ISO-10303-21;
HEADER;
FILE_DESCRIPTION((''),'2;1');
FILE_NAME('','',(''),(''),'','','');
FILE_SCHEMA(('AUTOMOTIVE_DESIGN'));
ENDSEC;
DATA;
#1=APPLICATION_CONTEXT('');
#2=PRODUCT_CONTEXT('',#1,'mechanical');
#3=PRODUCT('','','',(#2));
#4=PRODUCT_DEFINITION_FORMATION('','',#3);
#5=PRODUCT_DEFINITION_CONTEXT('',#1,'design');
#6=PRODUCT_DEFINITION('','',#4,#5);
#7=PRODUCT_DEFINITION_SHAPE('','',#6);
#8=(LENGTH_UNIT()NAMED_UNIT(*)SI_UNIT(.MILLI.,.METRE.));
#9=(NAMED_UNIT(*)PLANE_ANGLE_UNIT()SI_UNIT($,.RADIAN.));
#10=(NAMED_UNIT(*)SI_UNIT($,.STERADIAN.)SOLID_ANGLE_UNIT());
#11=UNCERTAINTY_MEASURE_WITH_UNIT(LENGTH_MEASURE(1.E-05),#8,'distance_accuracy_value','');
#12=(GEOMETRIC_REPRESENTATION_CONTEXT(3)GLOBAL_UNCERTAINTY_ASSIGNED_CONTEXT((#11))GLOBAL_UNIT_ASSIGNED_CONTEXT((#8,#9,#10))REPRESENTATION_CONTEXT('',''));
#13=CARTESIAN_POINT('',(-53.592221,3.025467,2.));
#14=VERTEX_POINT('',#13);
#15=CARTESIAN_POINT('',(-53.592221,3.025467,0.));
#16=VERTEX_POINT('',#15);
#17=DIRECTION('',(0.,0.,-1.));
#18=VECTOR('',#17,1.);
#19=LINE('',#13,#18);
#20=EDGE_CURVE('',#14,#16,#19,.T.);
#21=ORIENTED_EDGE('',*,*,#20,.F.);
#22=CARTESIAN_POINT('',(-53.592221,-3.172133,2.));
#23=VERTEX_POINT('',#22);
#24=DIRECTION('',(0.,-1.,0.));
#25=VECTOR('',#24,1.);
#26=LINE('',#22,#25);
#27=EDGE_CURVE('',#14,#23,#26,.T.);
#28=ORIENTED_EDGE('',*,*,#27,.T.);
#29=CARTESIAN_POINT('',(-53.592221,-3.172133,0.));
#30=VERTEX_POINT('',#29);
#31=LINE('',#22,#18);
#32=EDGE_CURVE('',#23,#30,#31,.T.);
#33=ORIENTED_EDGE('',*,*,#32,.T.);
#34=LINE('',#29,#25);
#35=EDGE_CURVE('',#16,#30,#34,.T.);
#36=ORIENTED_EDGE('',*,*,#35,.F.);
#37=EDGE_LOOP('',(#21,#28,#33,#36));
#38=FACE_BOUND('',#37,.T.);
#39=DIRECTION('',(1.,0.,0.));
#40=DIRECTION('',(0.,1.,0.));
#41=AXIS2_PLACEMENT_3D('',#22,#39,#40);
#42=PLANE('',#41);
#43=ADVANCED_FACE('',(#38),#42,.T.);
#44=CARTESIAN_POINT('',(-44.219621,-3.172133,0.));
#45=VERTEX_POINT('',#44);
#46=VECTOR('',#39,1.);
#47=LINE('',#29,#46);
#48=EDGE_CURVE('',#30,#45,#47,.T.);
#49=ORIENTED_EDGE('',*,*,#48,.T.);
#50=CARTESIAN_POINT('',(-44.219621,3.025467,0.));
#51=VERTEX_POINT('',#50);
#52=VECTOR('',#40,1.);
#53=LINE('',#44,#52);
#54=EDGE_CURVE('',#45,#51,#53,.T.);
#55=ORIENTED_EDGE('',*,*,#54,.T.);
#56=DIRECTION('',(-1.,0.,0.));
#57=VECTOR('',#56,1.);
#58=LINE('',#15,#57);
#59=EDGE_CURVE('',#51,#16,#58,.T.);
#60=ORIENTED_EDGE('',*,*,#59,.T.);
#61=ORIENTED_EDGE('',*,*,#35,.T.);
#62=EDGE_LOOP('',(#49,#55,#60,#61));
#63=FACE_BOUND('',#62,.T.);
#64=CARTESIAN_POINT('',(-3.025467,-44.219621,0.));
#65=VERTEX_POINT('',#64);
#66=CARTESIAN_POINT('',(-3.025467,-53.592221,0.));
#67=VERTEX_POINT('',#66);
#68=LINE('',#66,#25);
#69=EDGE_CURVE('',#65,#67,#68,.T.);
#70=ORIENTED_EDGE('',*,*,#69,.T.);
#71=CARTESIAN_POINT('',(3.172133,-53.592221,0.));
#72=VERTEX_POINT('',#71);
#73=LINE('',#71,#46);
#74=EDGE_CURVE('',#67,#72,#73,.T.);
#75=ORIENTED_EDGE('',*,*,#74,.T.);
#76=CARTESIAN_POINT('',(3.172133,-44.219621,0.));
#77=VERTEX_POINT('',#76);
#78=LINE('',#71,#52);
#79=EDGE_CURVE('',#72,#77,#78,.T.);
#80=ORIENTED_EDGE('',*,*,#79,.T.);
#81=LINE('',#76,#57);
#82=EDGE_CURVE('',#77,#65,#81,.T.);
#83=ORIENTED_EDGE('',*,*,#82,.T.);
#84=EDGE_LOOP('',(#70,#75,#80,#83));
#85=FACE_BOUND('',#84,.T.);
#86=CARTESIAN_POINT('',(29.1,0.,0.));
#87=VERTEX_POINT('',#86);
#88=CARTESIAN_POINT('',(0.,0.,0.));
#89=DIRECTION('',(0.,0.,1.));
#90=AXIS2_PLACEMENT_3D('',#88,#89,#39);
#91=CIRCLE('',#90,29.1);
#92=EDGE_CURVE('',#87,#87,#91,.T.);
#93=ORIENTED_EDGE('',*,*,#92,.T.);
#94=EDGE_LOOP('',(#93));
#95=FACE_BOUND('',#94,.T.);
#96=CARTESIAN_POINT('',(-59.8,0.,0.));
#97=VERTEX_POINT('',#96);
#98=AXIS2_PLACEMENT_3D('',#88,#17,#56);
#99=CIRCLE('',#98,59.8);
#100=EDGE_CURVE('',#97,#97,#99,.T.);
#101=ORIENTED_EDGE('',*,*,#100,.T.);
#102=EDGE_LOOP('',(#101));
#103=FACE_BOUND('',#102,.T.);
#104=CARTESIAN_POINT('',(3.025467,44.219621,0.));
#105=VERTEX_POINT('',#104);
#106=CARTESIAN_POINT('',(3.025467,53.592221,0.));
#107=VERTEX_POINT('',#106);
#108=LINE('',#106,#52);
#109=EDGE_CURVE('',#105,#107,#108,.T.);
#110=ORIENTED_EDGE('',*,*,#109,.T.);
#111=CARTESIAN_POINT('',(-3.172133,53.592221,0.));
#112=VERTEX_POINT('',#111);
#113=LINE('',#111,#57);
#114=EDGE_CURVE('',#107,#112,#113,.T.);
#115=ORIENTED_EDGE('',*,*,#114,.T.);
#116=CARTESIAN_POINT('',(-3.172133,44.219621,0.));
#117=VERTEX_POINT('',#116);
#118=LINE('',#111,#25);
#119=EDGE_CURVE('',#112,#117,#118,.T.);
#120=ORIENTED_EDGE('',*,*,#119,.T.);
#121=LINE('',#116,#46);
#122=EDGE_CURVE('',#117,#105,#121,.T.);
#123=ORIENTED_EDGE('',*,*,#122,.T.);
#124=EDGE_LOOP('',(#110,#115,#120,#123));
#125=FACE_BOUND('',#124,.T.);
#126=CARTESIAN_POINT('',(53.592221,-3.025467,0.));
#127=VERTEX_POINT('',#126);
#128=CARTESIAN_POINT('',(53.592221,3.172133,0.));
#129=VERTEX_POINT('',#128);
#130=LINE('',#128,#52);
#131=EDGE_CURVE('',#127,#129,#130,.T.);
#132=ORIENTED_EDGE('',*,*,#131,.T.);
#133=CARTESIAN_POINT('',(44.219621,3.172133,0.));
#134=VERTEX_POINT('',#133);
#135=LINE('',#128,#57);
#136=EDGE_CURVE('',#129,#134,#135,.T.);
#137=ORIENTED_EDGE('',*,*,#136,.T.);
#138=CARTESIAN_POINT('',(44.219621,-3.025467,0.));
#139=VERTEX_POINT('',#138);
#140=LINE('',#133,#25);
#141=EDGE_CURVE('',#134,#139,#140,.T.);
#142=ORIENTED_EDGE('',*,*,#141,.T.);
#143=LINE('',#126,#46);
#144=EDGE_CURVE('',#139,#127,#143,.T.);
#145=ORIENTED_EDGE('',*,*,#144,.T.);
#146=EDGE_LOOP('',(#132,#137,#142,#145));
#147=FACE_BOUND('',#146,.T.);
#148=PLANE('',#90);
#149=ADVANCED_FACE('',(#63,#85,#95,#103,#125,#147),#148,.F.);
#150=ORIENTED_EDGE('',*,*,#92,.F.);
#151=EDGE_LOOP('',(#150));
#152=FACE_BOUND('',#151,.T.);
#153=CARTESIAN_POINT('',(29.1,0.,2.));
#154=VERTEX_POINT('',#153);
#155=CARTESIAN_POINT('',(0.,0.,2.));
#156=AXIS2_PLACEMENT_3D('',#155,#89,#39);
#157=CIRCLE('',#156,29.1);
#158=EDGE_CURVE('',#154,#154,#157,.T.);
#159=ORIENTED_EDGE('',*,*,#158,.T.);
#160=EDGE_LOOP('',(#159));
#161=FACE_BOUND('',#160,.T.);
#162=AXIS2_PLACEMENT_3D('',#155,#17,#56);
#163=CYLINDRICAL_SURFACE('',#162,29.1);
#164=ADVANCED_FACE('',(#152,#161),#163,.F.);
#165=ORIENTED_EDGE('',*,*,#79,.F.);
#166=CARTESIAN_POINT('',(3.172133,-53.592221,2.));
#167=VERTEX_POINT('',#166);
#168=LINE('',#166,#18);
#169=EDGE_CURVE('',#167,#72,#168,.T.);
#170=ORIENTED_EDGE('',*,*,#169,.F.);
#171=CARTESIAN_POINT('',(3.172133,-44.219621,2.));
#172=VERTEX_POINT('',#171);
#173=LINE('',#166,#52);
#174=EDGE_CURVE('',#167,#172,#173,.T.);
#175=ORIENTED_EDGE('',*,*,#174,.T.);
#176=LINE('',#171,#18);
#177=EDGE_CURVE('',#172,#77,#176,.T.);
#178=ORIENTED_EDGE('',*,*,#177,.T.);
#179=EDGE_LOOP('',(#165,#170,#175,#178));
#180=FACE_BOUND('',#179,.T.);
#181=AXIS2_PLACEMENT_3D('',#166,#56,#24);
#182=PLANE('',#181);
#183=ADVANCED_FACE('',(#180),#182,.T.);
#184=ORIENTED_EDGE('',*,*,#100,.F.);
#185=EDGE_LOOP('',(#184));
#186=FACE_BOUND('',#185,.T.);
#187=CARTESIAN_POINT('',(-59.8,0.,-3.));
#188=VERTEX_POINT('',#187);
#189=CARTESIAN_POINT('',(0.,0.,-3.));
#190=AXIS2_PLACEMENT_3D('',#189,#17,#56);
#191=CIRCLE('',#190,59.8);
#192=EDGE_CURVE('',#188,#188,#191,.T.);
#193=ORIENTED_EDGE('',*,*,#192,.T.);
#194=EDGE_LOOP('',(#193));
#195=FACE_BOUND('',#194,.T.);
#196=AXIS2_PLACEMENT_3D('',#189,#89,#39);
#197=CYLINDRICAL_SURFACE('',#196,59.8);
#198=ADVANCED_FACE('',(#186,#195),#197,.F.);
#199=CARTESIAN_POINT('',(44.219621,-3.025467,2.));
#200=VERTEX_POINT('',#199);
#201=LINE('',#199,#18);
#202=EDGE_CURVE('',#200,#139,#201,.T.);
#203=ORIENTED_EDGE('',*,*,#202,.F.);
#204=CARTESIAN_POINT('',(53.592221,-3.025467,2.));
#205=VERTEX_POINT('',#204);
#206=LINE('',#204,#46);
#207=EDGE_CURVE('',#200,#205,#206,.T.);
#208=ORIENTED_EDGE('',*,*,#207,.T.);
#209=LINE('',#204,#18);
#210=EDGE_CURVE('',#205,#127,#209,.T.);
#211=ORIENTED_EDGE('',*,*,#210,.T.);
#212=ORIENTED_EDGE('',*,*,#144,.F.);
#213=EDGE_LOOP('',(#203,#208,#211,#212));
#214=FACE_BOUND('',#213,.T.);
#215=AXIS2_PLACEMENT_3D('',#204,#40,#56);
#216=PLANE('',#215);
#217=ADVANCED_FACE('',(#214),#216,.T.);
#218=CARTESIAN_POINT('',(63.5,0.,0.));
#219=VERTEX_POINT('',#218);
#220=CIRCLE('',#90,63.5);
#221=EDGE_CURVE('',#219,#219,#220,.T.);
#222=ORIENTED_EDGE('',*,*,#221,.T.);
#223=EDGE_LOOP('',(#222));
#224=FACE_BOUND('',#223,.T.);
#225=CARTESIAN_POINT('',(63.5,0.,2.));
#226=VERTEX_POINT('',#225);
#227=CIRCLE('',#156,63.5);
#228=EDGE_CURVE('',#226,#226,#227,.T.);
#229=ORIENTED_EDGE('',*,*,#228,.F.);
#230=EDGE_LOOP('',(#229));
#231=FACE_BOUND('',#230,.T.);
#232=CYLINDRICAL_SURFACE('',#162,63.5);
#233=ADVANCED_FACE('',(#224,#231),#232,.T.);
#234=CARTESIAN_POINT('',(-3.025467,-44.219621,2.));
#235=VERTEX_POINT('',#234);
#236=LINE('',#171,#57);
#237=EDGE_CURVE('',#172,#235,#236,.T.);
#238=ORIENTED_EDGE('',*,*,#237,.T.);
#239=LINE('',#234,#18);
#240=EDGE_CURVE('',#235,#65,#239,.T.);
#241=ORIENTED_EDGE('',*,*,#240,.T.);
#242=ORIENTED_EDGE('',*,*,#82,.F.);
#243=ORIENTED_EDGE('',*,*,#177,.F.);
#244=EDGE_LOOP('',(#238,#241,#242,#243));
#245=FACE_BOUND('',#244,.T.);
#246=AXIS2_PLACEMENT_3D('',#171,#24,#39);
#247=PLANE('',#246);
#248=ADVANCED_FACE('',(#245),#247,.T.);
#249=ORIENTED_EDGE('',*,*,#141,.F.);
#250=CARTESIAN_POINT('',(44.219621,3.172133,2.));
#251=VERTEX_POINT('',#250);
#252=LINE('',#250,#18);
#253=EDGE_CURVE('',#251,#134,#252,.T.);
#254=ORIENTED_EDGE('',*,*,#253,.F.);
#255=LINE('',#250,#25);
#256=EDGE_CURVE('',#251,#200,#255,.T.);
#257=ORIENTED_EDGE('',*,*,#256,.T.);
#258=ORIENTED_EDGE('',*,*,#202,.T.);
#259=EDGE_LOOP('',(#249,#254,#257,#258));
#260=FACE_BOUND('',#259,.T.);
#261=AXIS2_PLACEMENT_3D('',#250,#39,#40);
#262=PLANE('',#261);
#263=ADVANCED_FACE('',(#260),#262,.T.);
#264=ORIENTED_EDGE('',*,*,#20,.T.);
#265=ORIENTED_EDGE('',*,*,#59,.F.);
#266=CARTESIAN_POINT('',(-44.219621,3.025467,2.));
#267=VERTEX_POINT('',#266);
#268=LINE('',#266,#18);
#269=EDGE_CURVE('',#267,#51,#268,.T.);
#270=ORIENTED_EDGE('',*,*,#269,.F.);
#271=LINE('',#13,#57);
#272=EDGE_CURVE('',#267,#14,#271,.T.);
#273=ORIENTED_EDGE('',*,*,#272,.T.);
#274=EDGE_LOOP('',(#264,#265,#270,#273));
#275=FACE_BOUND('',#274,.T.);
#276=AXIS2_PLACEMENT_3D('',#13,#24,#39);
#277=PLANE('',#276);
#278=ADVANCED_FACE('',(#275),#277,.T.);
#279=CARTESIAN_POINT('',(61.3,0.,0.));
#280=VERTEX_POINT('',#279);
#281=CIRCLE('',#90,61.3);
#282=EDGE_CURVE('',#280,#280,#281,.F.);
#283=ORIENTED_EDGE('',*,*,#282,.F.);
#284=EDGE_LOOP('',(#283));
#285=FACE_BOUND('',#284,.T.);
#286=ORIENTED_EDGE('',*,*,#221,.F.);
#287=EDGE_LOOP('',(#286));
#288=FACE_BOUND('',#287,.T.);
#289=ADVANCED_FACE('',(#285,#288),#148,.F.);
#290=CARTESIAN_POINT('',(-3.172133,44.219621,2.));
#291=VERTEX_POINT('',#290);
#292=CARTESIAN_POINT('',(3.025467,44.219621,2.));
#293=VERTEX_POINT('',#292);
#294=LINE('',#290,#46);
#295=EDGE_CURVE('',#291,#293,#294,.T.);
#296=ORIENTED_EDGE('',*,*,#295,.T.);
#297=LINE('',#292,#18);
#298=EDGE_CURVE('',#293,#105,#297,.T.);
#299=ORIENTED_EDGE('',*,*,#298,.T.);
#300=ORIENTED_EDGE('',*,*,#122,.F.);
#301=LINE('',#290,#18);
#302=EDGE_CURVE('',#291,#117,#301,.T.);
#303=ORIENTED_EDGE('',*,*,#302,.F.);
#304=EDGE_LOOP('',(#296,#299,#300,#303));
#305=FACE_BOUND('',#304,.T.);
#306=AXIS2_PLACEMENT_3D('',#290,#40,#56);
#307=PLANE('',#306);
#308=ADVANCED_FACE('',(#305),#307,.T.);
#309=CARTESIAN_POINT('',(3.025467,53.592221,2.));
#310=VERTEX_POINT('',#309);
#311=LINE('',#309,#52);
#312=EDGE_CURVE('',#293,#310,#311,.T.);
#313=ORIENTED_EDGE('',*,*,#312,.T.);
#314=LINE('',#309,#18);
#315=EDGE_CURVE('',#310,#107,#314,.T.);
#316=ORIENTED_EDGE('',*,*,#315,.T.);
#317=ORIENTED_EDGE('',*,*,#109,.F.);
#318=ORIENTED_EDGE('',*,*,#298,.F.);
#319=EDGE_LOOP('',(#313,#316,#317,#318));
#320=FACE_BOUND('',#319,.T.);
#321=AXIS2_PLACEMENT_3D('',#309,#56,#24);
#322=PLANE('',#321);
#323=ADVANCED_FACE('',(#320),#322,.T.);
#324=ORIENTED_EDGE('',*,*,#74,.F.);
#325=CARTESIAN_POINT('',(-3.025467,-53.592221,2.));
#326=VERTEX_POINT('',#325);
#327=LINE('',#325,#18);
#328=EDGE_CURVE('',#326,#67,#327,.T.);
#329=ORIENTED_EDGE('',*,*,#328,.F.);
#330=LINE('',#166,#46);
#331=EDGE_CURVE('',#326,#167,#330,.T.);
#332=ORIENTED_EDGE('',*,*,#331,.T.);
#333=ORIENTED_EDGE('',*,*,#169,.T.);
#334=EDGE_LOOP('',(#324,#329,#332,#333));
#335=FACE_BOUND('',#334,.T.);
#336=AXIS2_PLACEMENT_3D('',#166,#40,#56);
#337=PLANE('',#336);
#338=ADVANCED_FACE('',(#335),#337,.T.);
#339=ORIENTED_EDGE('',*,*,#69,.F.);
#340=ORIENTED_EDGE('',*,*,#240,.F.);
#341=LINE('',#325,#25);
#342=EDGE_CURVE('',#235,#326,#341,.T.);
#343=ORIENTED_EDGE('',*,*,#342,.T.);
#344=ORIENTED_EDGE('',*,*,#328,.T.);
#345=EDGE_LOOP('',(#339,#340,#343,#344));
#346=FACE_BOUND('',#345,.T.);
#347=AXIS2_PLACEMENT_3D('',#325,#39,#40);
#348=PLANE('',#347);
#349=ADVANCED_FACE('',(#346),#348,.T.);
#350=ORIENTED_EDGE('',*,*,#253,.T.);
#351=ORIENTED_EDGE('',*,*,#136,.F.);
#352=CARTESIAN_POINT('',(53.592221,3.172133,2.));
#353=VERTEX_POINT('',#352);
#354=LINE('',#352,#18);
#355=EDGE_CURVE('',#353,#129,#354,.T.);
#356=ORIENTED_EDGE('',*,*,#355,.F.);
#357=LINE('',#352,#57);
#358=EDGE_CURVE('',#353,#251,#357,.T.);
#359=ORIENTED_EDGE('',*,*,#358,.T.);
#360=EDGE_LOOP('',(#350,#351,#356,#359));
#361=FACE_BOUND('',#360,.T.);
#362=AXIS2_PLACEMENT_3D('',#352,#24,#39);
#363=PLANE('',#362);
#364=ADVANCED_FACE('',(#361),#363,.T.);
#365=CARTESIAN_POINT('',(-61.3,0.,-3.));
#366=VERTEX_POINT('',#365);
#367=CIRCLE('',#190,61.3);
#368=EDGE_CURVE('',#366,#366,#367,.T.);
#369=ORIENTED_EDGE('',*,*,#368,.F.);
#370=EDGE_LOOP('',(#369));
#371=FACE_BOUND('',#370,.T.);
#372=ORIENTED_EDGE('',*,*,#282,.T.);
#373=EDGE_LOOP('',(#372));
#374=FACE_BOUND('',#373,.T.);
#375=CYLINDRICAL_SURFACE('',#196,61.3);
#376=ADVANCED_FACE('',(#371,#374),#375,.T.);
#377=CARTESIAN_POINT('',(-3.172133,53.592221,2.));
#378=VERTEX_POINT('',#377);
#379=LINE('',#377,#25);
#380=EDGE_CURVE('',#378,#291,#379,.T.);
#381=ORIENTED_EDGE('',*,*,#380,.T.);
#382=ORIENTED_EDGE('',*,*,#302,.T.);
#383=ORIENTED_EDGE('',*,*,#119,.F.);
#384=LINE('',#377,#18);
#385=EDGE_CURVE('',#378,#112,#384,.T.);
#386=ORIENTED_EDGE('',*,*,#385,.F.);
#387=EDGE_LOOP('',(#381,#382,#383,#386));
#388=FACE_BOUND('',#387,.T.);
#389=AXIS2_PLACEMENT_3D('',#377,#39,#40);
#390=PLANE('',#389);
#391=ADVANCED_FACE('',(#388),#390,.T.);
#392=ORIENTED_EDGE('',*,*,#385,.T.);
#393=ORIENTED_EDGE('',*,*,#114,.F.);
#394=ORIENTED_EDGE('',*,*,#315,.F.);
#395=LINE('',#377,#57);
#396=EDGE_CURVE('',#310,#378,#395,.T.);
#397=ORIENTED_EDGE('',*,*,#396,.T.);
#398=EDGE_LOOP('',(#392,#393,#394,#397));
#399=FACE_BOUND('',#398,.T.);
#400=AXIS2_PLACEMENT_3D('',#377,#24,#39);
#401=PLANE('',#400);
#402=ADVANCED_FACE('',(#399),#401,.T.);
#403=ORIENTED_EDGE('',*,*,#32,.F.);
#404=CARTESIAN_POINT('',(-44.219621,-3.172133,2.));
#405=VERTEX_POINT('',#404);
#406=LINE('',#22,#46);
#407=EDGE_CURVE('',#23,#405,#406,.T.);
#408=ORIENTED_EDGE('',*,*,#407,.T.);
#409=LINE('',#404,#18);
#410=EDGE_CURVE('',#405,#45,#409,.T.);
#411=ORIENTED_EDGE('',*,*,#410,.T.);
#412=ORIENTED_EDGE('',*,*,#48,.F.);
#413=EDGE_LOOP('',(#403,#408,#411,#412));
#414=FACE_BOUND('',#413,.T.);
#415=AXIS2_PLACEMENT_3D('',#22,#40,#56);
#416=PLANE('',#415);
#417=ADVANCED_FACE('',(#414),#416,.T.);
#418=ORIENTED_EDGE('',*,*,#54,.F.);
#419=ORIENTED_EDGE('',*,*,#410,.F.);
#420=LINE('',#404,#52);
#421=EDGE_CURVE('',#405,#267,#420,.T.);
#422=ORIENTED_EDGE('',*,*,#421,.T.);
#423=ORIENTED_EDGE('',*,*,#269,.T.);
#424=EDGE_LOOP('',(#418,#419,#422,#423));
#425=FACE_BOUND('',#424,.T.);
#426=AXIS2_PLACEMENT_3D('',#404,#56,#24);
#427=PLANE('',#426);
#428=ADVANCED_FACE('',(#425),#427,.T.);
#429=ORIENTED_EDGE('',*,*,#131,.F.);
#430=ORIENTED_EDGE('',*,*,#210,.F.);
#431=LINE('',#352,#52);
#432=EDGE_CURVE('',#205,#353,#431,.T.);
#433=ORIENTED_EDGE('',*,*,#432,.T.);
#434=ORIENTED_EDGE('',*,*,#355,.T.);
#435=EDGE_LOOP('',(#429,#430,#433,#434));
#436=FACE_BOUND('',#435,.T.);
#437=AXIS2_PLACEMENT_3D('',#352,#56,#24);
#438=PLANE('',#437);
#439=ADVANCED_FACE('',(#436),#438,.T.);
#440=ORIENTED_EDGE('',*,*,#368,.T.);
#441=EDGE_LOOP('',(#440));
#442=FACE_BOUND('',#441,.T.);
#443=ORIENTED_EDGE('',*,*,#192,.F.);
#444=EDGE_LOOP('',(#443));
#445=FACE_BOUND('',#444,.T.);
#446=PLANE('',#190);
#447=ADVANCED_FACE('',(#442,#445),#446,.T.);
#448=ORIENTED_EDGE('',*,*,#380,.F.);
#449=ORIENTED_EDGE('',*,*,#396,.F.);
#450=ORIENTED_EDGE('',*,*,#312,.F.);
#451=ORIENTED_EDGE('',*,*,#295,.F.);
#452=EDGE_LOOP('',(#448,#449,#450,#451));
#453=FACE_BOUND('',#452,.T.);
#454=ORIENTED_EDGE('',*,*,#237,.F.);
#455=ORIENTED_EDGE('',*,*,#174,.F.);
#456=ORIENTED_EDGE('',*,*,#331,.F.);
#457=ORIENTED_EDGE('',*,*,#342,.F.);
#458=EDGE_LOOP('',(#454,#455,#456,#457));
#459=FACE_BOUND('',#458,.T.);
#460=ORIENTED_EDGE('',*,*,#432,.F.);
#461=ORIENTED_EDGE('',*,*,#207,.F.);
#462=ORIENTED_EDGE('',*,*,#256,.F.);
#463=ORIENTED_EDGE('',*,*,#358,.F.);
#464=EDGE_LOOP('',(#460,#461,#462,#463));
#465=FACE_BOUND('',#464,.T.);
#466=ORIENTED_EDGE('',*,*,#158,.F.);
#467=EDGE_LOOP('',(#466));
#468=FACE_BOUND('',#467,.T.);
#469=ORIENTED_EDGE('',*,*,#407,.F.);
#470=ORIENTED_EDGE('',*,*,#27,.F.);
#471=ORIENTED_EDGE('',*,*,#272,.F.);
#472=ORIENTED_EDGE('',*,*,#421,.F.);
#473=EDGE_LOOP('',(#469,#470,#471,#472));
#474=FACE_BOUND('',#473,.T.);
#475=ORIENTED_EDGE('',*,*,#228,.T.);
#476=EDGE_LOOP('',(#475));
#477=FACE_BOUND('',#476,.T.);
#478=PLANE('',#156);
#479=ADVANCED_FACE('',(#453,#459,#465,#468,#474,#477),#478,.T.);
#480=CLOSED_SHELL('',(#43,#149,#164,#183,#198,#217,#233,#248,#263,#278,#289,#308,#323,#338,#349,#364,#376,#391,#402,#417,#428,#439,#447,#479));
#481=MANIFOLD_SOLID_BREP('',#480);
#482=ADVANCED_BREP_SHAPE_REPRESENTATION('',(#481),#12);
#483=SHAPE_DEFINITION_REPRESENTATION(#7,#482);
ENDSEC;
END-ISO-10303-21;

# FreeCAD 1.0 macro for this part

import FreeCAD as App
import Part
import Sketcher
from FreeCAD import Vector
Q = App.Units.Quantity

doc = App.newDocument("Part")
body = doc.addObject("PartDesign::Body", "Body")

# Sketch on XY plane
sketch1 = body.newObject("Sketcher::SketchObject", "Sketch")
sketch1.AttachmentSupport = (doc.getObject("XY_Plane"), [""])
sketch1.MapMode = "FlatFace"
sketch1.addGeometry([
    Part.Circle(Vector(0, 0, 0), Vector(0, 0, 1), 64),  # 0
    Part.LineSegment(Vector(-44, 3, 0), Vector(-44, -3, 0)),  # 1
    Part.LineSegment(Vector(-44, -3, 0), Vector(-54, -3, 0)),  # 2
    Part.LineSegment(Vector(-54, -3, 0), Vector(-54, 3, 0)),  # 3
    Part.LineSegment(Vector(-54, 3, 0), Vector(-44, 3, 0)),  # 4
    Part.LineSegment(Vector(3, -44, 0), Vector(3, -54, 0)),  # 5
    Part.LineSegment(Vector(3, -54, 0), Vector(-3, -54, 0)),  # 6
    Part.LineSegment(Vector(-3, -54, 0), Vector(-3, -44, 0)),  # 7
    Part.LineSegment(Vector(-3, -44, 0), Vector(3, -44, 0)),  # 8
    Part.Circle(Vector(0, 0, 0), Vector(0, 0, 1), 29),  # 9
    Part.LineSegment(Vector(3, 54, 0), Vector(3, 44, 0)),  # 10
    Part.LineSegment(Vector(3, 44, 0), Vector(-3, 44, 0)),  # 11
    Part.LineSegment(Vector(-3, 44, 0), Vector(-3, 54, 0)),  # 12
    Part.LineSegment(Vector(-3, 54, 0), Vector(3, 54, 0)),  # 13
    Part.LineSegment(Vector(54, 3, 0), Vector(54, -3, 0)),  # 14
    Part.LineSegment(Vector(54, -3, 0), Vector(44, -3, 0)),  # 15
    Part.LineSegment(Vector(44, -3, 0), Vector(44, 3, 0)),  # 16
    Part.LineSegment(Vector(44, 3, 0), Vector(54, 3, 0)),  # 17
], False)
sketch1.addConstraint([
    Sketcher.Constraint("Coincident", 1, 2, 2, 1),
    Sketcher.Constraint("Coincident", 2, 2, 3, 1),
    Sketcher.Constraint("Coincident", 3, 2, 4, 1),
    Sketcher.Constraint("Coincident", 4, 2, 1, 1),
    Sketcher.Constraint("Coincident", 5, 2, 6, 1),
    Sketcher.Constraint("Coincident", 6, 2, 7, 1),
    Sketcher.Constraint("Coincident", 7, 2, 8, 1),
    Sketcher.Constraint("Coincident", 8, 2, 5, 1),
    Sketcher.Constraint("Coincident", 10, 2, 11, 1),
    Sketcher.Constraint("Coincident", 11, 2, 12, 1),
    Sketcher.Constraint("Coincident", 12, 2, 13, 1),
    Sketcher.Constraint("Coincident", 13, 2, 10, 1),
    Sketcher.Constraint("Coincident", 14, 2, 15, 1),
    Sketcher.Constraint("Coincident", 15, 2, 16, 1),
    Sketcher.Constraint("Coincident", 16, 2, 17, 1),
    Sketcher.Constraint("Coincident", 17, 2, 14, 1),
    Sketcher.Constraint("Vertical", 1),
    Sketcher.Constraint("Horizontal", 2),
    Sketcher.Constraint("Vertical", 3),
    Sketcher.Constraint("Horizontal", 4),
    Sketcher.Constraint("Vertical", 5),
    Sketcher.Constraint("Horizontal", 6),
    Sketcher.Constraint("Vertical", 7),
    Sketcher.Constraint("Horizontal", 8),
    Sketcher.Constraint("Vertical", 10),
    Sketcher.Constraint("Horizontal", 11),
    Sketcher.Constraint("Vertical", 12),
    Sketcher.Constraint("Horizontal", 13),
    Sketcher.Constraint("Vertical", 14),
    Sketcher.Constraint("Horizontal", 15),
    Sketcher.Constraint("Vertical", 16),
    Sketcher.Constraint("Horizontal", 17),
    Sketcher.Constraint("Coincident", 0, 3, -1, 1),
    Sketcher.Constraint("Coincident", 9, 3, -1, 1),
    Sketcher.Constraint("Symmetric", 7, 2, 10, 2, -1, 1),
    Sketcher.Constraint("Symmetric", 5, 2, 12, 2, -1, 1),
    Sketcher.Constraint("Symmetric", 3, 2, 14, 2, -1, 1),
    Sketcher.Constraint("Symmetric", 1, 2, 16, 2, -1, 1),
    Sketcher.Constraint("Equal", 13, 1),
    Sketcher.Constraint("Equal", 17, 5),
    Sketcher.Constraint("Diameter", 0, Q("127 mm")),
    Sketcher.Constraint("Diameter", 9, Q("58.2 mm")),
    Sketcher.Constraint("DistanceX", 2, 2, 2, 1, Q("9.3726 mm")),
    Sketcher.Constraint("DistanceX", 6, 2, 6, 1, Q("6.1976 mm")),
    Sketcher.Constraint("DistanceX", 1, 2, -1, 1, Q("44.219621 mm")),
    Sketcher.Constraint("DistanceY", 5, 2, -1, 1, Q("53.592221 mm")),
    Sketcher.Constraint("DistanceY", 1, 2, -1, 1, Q("3.172133 mm")),
    Sketcher.Constraint("DistanceX", -1, 1, 5, 2, Q("3.172133 mm")),
])
pad1 = body.newObject("PartDesign::Pad", "Pad")
pad1.Profile = sketch1
pad1.Length = 2

# Sketch on XY plane
sketch2 = body.newObject("Sketcher::SketchObject", "Sketch001")
sketch2.AttachmentSupport = (doc.getObject("XY_Plane"), [""])
sketch2.MapMode = "FlatFace"
sketch2.addGeometry([
    Part.Circle(Vector(0, 0, 0), Vector(0, 0, 1), 61),
    Part.Circle(Vector(0, 0, 0), Vector(0, 0, 1), 60),
], False)
sketch2.addConstraint([
    Sketcher.Constraint("Coincident", 0, 3, -1, 1),
    Sketcher.Constraint("Coincident", 1, 3, -1, 1),
    Sketcher.Constraint("Diameter", 0, Q("122.6 mm")),
    Sketcher.Constraint("Diameter", 1, Q("119.6 mm")),
])
pad2 = body.newObject("PartDesign::Pad", "Pad001")
pad2.Profile = sketch2
pad2.Length = 3
pad2.Reversed = True

doc.recompute()
